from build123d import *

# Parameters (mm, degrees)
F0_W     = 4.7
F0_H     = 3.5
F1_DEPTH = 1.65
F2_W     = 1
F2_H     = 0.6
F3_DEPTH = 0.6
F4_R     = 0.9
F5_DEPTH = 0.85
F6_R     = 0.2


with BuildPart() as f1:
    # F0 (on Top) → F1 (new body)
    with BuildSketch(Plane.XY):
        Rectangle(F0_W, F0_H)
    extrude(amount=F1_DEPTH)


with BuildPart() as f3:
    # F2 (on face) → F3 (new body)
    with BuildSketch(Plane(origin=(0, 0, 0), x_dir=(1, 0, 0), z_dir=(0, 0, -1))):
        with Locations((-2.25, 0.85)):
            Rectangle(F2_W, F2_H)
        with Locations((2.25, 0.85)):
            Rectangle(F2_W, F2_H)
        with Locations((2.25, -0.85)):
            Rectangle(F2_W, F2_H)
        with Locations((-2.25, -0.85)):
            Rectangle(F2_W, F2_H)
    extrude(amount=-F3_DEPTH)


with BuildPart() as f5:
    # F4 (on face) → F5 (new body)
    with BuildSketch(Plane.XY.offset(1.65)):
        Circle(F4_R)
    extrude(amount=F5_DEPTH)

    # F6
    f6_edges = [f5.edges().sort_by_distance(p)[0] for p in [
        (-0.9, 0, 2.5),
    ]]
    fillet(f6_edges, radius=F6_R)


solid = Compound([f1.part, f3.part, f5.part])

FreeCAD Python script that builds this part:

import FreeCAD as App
import Part
import Sketcher
Q = App.Units.Quantity


def edges_at(feature, points):
    """Names of the edges that pass closest to the given points."""
    edges = feature.Shape.Edges
    near = lambda p: min(range(len(edges)), key=lambda i: edges[i].distToShape(Part.Vertex(*p))[0])
    return sorted({f"Edge{near(p) + 1}" for p in points})


def add_polygon(sketch, points):
    """Adds a closed chain of lines whose ends are joined by coincident constraints."""
    first, n = sketch.GeometryCount, len(points)
    for a, b in zip(points, points[1:] + points[:1]):
        sketch.addGeometry(Part.LineSegment(App.Vector(*a, 0), App.Vector(*b, 0)), False)
    for i in range(n):
        sketch.addConstraint(Sketcher.Constraint("Coincident", first + i, 2, first + (i + 1) % n, 1))

doc = App.newDocument("Part")
body = doc.addObject("PartDesign::Body", "Body")

# Sketch on XY plane
sketch1 = doc.addObject("Sketcher::SketchObject", "Sketch")
body.addObject(sketch1)
sketch1.AttachmentSupport = (doc.XY_Plane, [""])
sketch1.MapMode = "FlatFace"
add_polygon(sketch1, [(-2.35, 1.75), (-2.35, -1.75), (2.35, -1.75), (2.35, 1.75)])  # lines 0-3
sketch1.addConstraint([
    Sketcher.Constraint("Vertical", 0),
    Sketcher.Constraint("Horizontal", 1),
    Sketcher.Constraint("Vertical", 2),
    Sketcher.Constraint("Horizontal", 3),
    Sketcher.Constraint("Symmetric", 0, 2, 2, 2, -1, 1),
    Sketcher.Constraint("DistanceX", 1, 1, 1, 2, Q("4.7 mm")),
    Sketcher.Constraint("DistanceY", 0, 2, 0, 1, Q("3.5 mm")),
])
pad1 = doc.addObject("PartDesign::Pad", "Pad")
body.addObject(pad1)
pad1.Profile = sketch1
pad1.Length = 1.65
body2 = doc.addObject("PartDesign::Body", "Body001")
body2.AllowCompound = True

# Sketch on XY plane
sketch2 = doc.addObject("Sketcher::SketchObject", "Sketch001")
body2.addObject(sketch2)
sketch2.AttachmentSupport = (doc.getObject("XY_Plane001"), [""])
sketch2.MapMode = "FlatFace"
add_polygon(sketch2, [(-2.75, -1.15), (-2.75, -0.55), (-1.75, -0.55), (-1.75, -1.15)])  # lines 0-3
add_polygon(sketch2, [(1.75, -1.15), (1.75, -0.55), (2.75, -0.55), (2.75, -1.15)])  # lines 4-7
add_polygon(sketch2, [(1.75, 0.55), (1.75, 1.15), (2.75, 1.15), (2.75, 0.55)])  # lines 8-11
add_polygon(sketch2, [(-2.75, 0.55), (-2.75, 1.15), (-1.75, 1.15), (-1.75, 0.55)])  # lines 12-15
sketch2.addConstraint([
    Sketcher.Constraint("Vertical", 0),
    Sketcher.Constraint("Horizontal", 1),
    Sketcher.Constraint("Vertical", 2),
    Sketcher.Constraint("Horizontal", 3),
    Sketcher.Constraint("Vertical", 4),
    Sketcher.Constraint("Horizontal", 5),
    Sketcher.Constraint("Vertical", 6),
    Sketcher.Constraint("Horizontal", 7),
    Sketcher.Constraint("Vertical", 8),
    Sketcher.Constraint("Horizontal", 9),
    Sketcher.Constraint("Vertical", 10),
    Sketcher.Constraint("Horizontal", 11),
    Sketcher.Constraint("Vertical", 12),
    Sketcher.Constraint("Horizontal", 13),
    Sketcher.Constraint("Vertical", 14),
    Sketcher.Constraint("Horizontal", 15),
    Sketcher.Constraint("Symmetric", 2, 2, 8, 2, -1, 1),
    Sketcher.Constraint("Symmetric", 0, 2, 10, 2, -1, 1),
    Sketcher.Constraint("Symmetric", 6, 2, 12, 2, -1, 1),
    Sketcher.Constraint("Symmetric", 4, 2, 14, 2, -1, 1),
    Sketcher.Constraint("Symmetric", 1, 2, 4, 2, -2),
    Sketcher.Constraint("Symmetric", 3, 2, 6, 2, -2),
    Sketcher.Constraint("DistanceX", 1, 1, 1, 2, Q("1 mm")),
    Sketcher.Constraint("DistanceY", 0, 1, 0, 2, Q("0.6 mm")),
    Sketcher.Constraint("DistanceX", 1, 2, 4, 2, Q("3.5 mm")),
    Sketcher.Constraint("DistanceY", 4, 2, 8, 2, Q("1.7 mm")),
])
pad2 = doc.addObject("PartDesign::Pad", "Pad001")
body2.addObject(pad2)
pad2.Profile = sketch2
pad2.Length = 0.6
body3 = doc.addObject("PartDesign::Body", "Body002")

# Sketch on XY plane
sketch3 = doc.addObject("Sketcher::SketchObject", "Sketch002")
body3.addObject(sketch3)
sketch3.AttachmentSupport = (doc.getObject("XY_Plane002"), [""])
sketch3.MapMode = "FlatFace"
sketch3.AttachmentOffset = App.Placement(App.Vector(0, 0, 1.65), App.Rotation())
sketch3.addGeometry(Part.Circle(App.Vector(0, 0, 0), App.Vector(0, 0, 1), 0.9), False)
sketch3.addConstraint([
    Sketcher.Constraint("Coincident", 0, 3, -1, 1),
    Sketcher.Constraint("Diameter", 0, Q("1.8 mm")),
])
pad3 = doc.addObject("PartDesign::Pad", "Pad002")
body3.addObject(pad3)
pad3.Profile = sketch3
pad3.Length = 0.85
doc.recompute()

fillet = doc.addObject("PartDesign::Fillet", "Fillet")
body3.addObject(fillet)
fillet.Base = (pad3, edges_at(pad3, [(-0.9, 0, 2.5)]))
fillet.Radius = 0.2

doc.recompute()
